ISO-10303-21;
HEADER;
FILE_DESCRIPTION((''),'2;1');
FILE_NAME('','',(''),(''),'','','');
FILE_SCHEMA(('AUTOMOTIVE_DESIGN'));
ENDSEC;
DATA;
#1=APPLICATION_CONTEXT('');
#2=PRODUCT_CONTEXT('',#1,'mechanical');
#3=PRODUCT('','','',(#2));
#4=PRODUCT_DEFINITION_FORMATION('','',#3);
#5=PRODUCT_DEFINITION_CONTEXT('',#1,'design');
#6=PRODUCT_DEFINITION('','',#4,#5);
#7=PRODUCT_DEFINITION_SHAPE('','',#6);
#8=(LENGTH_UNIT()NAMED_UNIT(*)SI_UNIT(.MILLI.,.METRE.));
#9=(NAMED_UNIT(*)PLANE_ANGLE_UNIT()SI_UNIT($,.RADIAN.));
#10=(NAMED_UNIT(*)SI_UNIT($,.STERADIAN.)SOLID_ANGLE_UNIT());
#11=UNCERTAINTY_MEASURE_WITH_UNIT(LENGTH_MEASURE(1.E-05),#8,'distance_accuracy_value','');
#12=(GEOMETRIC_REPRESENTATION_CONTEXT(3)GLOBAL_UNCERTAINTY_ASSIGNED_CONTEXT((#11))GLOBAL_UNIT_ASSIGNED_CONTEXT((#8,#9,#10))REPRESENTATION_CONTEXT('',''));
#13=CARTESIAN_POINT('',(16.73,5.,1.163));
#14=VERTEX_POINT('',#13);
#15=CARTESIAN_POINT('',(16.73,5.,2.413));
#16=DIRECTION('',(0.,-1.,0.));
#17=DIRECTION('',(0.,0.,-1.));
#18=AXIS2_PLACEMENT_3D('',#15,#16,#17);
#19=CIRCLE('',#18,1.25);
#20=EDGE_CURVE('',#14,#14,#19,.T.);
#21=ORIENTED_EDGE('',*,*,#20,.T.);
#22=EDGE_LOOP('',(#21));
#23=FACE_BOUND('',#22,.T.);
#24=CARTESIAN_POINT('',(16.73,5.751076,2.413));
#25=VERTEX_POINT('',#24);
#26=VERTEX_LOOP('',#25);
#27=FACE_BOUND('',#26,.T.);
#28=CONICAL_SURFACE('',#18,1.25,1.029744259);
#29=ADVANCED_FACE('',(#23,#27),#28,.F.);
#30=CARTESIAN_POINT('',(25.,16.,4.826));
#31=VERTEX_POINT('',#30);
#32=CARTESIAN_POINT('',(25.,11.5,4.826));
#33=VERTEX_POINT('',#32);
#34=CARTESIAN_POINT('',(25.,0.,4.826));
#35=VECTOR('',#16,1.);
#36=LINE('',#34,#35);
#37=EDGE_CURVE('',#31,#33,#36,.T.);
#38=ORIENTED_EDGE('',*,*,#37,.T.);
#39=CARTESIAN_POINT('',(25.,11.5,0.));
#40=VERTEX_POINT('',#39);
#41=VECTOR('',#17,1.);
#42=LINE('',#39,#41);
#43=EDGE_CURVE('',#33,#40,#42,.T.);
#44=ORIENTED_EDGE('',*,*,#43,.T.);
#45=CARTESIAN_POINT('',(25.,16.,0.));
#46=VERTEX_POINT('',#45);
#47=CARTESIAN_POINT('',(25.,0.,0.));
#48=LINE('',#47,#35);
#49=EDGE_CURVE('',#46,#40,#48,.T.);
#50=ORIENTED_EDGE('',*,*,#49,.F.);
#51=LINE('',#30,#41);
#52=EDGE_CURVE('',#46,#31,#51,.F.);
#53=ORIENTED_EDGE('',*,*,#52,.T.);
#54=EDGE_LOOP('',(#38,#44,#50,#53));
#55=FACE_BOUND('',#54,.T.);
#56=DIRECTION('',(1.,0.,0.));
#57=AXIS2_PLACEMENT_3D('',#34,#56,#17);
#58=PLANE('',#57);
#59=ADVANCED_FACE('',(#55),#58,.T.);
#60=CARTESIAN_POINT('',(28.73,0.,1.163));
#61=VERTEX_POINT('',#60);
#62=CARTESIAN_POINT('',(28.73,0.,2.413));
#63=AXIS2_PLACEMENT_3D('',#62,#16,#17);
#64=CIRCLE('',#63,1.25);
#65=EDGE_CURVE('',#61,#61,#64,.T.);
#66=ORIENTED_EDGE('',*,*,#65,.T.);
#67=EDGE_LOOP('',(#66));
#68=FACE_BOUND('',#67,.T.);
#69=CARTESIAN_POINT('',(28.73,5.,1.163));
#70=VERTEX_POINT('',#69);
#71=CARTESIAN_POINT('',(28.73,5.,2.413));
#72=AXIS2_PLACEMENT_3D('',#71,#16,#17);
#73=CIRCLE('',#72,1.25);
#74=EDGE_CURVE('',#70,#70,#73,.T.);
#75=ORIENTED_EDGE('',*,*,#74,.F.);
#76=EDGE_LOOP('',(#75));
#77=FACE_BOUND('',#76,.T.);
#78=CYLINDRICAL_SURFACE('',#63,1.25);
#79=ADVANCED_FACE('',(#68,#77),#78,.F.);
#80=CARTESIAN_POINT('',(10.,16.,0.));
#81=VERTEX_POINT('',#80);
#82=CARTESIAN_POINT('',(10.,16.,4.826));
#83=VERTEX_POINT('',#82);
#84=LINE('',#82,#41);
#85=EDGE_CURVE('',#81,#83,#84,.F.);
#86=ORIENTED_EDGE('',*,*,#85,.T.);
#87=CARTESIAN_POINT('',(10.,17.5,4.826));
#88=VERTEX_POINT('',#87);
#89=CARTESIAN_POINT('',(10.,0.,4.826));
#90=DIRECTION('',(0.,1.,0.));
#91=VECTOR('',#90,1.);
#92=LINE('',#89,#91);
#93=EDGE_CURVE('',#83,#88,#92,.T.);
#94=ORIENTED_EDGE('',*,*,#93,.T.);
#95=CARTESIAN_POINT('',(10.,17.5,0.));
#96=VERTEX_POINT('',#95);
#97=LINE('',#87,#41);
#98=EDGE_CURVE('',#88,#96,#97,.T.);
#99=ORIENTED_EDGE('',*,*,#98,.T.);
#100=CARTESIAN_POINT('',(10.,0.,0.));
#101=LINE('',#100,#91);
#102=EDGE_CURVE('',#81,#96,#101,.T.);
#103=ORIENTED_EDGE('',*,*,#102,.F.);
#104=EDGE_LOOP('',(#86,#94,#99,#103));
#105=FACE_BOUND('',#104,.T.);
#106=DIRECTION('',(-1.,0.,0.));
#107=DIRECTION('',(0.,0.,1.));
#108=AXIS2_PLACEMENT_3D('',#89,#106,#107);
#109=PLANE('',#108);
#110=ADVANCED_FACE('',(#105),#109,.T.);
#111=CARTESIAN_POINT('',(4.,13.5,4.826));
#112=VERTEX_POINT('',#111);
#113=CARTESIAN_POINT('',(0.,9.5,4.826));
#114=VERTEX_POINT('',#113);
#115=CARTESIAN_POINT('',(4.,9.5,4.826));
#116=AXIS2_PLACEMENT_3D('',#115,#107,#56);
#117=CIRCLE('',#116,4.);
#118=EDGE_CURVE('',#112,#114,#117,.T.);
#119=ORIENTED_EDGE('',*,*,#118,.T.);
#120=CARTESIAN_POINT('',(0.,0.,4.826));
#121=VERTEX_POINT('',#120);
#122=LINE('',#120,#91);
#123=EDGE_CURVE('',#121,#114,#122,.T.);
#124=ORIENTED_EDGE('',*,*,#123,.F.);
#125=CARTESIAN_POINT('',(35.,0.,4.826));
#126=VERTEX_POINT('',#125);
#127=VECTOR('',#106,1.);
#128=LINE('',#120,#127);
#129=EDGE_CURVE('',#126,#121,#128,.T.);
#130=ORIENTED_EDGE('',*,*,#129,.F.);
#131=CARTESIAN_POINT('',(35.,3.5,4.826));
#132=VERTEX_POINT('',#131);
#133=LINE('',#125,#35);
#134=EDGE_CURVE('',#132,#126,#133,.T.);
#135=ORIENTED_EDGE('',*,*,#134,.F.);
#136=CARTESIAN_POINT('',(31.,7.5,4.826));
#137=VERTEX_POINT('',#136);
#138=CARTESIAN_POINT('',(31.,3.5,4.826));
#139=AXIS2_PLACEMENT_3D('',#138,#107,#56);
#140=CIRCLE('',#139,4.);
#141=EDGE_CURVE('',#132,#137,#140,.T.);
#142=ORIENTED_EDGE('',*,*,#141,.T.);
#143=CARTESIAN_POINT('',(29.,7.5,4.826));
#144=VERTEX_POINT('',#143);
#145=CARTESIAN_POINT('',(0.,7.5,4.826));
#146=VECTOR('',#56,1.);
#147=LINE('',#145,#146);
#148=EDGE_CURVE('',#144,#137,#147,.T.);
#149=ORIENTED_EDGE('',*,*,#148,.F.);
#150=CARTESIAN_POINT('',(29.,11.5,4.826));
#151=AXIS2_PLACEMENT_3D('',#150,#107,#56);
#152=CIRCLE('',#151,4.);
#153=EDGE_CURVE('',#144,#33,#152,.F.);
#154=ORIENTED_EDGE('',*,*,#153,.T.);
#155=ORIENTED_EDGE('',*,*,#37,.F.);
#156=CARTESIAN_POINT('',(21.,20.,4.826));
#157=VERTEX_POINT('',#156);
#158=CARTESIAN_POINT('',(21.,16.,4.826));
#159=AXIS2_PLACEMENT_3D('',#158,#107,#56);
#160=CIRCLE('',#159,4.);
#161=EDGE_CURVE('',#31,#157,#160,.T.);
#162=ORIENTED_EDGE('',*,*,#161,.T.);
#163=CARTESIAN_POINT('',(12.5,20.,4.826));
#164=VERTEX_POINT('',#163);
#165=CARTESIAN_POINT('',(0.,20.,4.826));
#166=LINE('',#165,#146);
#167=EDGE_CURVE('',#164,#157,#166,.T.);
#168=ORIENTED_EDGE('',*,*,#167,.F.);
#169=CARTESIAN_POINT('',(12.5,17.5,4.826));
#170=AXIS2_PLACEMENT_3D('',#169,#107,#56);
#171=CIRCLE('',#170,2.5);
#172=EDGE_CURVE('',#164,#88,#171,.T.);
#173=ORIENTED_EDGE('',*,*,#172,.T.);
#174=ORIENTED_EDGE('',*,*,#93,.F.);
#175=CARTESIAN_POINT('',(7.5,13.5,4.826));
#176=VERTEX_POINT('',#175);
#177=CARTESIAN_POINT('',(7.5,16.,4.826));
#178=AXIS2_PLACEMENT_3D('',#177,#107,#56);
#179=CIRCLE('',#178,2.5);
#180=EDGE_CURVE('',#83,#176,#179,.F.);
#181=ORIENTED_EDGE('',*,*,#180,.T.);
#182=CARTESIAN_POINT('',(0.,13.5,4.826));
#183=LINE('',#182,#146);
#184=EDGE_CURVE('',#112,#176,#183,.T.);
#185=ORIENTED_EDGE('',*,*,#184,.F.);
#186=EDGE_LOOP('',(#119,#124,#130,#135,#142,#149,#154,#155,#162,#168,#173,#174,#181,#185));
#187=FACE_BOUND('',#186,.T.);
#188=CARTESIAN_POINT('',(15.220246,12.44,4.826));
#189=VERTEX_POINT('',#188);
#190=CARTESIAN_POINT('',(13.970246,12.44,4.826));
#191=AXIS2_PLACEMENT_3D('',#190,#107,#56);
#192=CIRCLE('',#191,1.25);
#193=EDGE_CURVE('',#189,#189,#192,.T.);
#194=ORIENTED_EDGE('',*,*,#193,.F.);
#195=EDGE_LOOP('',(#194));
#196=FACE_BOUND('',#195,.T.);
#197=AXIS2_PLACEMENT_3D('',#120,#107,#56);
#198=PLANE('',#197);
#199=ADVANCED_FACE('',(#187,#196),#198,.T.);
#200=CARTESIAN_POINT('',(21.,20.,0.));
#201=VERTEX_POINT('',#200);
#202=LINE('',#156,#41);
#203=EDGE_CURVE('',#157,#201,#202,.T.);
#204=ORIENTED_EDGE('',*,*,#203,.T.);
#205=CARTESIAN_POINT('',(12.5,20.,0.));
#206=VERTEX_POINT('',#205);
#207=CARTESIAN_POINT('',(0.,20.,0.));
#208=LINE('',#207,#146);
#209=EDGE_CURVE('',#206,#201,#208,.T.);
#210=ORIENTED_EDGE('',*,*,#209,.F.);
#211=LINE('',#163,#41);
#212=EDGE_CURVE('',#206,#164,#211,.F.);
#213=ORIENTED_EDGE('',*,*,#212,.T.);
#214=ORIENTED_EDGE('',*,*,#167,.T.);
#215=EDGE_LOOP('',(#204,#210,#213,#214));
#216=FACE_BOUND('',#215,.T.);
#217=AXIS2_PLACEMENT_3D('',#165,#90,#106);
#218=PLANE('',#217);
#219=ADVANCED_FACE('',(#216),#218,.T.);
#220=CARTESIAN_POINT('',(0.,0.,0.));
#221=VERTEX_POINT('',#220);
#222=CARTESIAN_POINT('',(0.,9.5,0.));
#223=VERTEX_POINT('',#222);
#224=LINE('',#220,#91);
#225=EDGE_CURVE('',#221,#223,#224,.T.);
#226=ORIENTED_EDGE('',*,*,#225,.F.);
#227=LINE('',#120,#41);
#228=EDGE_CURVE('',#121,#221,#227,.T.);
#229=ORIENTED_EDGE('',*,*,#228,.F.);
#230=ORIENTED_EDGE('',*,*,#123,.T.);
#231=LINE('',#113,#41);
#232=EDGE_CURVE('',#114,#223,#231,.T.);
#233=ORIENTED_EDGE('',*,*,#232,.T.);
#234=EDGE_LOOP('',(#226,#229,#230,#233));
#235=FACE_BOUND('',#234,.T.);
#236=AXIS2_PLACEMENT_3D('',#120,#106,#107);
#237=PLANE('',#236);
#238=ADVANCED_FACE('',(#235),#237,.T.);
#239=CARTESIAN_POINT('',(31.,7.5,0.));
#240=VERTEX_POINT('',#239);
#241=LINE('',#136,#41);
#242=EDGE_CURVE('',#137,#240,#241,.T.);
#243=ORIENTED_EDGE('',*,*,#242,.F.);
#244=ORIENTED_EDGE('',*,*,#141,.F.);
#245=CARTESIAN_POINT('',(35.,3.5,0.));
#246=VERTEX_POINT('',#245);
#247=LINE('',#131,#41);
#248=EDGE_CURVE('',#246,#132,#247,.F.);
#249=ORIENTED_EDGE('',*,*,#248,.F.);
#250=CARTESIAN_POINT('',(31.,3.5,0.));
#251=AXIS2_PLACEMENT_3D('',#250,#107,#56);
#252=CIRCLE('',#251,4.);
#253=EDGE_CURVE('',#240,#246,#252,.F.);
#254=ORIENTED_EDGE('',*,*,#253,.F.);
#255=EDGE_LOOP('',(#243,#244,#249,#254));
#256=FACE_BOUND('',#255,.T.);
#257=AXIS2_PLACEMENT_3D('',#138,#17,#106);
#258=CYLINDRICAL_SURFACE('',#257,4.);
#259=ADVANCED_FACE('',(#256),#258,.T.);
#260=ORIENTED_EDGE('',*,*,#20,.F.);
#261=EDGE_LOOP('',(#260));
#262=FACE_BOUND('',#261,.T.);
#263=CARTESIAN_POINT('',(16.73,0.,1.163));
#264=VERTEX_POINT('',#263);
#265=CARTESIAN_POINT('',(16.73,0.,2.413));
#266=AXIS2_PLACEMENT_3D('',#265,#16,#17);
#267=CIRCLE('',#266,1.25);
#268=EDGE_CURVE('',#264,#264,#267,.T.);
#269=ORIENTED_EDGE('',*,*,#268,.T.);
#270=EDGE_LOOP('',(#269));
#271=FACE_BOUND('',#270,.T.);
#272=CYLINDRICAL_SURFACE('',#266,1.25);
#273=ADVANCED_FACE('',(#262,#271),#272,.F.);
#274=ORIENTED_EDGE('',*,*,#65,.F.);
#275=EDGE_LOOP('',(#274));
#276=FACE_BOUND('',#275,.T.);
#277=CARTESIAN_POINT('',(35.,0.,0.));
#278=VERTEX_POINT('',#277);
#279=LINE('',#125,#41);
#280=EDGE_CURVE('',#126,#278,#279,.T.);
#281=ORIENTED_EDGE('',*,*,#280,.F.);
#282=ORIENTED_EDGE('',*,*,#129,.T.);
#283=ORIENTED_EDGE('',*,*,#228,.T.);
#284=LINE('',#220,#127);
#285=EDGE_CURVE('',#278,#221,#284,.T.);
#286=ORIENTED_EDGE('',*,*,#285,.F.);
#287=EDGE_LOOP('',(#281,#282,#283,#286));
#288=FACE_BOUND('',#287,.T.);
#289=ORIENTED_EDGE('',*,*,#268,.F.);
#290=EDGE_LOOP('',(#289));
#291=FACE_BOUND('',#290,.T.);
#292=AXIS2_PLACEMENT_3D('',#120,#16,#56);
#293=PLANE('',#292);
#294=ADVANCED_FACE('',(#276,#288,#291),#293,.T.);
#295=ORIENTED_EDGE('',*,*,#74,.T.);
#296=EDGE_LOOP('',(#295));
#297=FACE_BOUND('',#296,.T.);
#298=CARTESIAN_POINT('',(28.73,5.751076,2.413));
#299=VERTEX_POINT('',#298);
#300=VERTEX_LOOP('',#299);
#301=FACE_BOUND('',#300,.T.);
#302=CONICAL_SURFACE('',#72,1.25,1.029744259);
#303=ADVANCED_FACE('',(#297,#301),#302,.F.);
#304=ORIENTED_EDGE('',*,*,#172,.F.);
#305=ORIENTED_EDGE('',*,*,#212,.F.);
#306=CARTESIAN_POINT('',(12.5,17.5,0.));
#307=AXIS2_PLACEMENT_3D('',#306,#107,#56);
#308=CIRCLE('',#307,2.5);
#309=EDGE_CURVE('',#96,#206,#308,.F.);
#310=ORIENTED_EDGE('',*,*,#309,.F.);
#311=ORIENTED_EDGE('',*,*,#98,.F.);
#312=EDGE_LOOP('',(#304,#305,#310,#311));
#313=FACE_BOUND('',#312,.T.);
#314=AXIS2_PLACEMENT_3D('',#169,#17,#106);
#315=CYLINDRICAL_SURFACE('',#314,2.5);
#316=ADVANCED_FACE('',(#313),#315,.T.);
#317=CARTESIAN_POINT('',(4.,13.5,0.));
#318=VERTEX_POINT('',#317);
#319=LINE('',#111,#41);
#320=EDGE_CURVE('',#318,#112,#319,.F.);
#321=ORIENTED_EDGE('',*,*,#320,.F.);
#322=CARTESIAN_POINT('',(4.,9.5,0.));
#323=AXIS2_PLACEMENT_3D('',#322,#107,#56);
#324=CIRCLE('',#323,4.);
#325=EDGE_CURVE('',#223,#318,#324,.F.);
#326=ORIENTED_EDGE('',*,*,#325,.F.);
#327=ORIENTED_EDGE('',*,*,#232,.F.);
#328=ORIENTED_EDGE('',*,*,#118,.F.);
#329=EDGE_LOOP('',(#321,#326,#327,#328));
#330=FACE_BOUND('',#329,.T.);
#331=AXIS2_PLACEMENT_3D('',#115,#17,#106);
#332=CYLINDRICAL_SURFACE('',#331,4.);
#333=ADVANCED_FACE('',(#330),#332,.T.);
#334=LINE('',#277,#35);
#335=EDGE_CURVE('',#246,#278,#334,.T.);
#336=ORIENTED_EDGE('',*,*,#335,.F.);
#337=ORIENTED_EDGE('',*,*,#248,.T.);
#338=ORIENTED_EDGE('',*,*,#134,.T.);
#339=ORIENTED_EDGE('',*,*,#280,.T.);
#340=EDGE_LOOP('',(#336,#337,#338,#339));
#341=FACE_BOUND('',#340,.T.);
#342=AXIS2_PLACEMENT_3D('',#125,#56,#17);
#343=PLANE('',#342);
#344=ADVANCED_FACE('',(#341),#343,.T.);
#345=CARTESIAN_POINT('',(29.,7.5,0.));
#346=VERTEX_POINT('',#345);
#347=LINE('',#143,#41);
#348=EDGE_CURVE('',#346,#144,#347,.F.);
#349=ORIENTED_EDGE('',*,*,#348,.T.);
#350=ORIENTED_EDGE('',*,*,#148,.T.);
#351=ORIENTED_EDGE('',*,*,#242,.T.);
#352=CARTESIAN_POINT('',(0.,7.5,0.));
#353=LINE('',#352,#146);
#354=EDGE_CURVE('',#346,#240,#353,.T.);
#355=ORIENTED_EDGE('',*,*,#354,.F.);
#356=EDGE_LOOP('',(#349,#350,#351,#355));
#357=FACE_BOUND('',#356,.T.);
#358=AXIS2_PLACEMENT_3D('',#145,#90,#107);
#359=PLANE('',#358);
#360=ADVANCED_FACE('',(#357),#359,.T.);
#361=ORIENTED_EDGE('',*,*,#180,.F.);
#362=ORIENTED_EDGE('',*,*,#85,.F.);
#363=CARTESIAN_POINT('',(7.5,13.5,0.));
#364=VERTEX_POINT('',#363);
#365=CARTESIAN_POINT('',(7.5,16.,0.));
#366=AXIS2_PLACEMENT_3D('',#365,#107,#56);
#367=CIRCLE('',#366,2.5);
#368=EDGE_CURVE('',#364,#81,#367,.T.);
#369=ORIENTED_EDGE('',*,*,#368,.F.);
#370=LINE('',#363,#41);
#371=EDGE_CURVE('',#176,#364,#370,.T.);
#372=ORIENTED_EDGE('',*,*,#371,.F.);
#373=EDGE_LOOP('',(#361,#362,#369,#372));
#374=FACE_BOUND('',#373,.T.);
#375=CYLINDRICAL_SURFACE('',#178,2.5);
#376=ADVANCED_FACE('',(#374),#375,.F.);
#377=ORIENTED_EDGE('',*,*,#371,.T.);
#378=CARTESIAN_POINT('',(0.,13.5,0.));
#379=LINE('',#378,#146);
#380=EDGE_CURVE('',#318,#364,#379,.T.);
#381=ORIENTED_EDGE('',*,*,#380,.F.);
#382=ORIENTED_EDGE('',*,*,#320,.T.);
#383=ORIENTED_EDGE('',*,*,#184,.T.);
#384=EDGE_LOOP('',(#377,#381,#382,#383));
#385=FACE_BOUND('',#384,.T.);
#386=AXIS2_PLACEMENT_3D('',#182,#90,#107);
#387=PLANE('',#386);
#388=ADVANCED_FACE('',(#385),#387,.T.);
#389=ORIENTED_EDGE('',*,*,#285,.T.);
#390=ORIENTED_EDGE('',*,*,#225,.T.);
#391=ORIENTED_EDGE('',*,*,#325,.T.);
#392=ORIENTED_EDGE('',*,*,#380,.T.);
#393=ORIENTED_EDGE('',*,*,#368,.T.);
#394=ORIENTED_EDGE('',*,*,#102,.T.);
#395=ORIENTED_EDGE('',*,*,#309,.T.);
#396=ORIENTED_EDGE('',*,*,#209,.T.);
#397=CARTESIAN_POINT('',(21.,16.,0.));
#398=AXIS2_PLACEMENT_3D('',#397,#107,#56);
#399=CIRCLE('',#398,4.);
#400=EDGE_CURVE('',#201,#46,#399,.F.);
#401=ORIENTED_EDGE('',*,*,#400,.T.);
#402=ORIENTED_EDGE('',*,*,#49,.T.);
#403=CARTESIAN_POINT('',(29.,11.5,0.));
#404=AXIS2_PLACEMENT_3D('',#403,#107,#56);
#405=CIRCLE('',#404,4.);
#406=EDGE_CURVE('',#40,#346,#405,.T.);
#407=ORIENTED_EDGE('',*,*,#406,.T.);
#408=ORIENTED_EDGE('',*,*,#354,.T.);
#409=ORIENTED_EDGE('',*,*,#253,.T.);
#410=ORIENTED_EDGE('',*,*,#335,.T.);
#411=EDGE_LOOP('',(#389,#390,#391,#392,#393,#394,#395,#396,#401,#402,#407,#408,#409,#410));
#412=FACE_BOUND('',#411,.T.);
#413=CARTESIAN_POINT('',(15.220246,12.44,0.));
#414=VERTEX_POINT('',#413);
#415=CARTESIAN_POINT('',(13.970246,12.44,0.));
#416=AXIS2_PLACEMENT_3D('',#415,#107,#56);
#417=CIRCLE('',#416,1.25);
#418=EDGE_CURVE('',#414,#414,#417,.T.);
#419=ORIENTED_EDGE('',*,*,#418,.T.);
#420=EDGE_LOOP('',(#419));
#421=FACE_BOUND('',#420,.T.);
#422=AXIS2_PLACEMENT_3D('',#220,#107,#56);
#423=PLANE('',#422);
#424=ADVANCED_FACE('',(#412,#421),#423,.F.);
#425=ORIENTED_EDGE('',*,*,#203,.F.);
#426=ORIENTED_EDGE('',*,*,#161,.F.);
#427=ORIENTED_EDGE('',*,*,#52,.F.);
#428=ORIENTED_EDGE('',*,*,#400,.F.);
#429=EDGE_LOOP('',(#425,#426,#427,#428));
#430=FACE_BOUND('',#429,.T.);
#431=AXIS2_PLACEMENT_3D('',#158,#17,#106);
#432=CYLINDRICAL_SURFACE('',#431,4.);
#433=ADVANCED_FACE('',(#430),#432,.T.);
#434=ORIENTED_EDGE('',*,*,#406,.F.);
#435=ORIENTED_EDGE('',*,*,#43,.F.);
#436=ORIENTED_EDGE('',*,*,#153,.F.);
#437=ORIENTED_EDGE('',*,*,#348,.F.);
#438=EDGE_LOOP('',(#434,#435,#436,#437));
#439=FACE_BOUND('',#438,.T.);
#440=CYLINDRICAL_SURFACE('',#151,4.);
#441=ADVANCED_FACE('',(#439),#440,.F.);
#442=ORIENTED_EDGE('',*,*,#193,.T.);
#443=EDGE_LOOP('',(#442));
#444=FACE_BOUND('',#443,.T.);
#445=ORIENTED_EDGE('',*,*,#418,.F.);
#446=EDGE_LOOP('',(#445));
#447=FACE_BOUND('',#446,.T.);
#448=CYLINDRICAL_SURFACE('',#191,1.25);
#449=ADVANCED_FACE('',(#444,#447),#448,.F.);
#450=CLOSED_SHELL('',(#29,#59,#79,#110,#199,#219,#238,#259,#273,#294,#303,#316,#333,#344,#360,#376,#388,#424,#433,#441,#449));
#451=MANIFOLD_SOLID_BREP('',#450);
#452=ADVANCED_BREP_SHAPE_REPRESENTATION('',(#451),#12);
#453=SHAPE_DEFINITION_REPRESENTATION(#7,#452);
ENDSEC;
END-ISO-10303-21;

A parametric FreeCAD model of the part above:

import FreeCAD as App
import Part
import Sketcher
from FreeCAD import Vector


def edges_at(feature, points):
    """Names of the edges that pass closest to the given points."""
    edges = feature.Shape.Edges
    near = lambda p: min(range(len(edges)), key=lambda i: edges[i].distToShape(Part.Vertex(*p))[0])
    return sorted({f"Edge{near(p) + 1}" for p in points})


def add_polygon(sketch, points):
    """Adds a closed chain of lines whose ends are joined by coincident constraints."""
    first, n = sketch.GeometryCount, len(points)
    for a, b in zip(points, points[1:] + points[:1]):
        sketch.addGeometry(Part.LineSegment(App.Vector(*a, 0), App.Vector(*b, 0)), False)
    for i in range(n):
        sketch.addConstraint(Sketcher.Constraint("Coincident", first + i, 2, first + (i + 1) % n, 1))

doc = App.newDocument("Part")
body = doc.addObject("PartDesign::Body", "Body")

sketch1 = body.newObject("Sketcher::SketchObject", "Sketch")
sketch1.AttachmentSupport = (doc.getObject("XY_Plane"), [""])
sketch1.MapMode = "FlatFace"
add_polygon(sketch1, [(0, 14), (0, 0), (35, 0), (35, 8), (25, 8), (25, 20), (10, 20), (10, 14)])
sketch1.addConstraint(Sketcher.Constraint("Vertical", 0))
sketch1.addConstraint(Sketcher.Constraint("Horizontal", 1))
sketch1.addConstraint(Sketcher.Constraint("Vertical", 2))
sketch1.addConstraint(Sketcher.Constraint("Horizontal", 3))
sketch1.addConstraint(Sketcher.Constraint("Vertical", 4))
sketch1.addConstraint(Sketcher.Constraint("Horizontal", 5))
sketch1.addConstraint(Sketcher.Constraint("Vertical", 6))
sketch1.addConstraint(Sketcher.Constraint("Horizontal", 7))
sketch1.addConstraint(Sketcher.Constraint("Coincident", 0, 2, -1, 1))
sketch1.addConstraint(Sketcher.Constraint("Equal", 3, 7))
sketch1.addConstraint(Sketcher.Constraint("DistanceX", 1, 1, 1, 2, 35.0))
sketch1.addConstraint(Sketcher.Constraint("DistanceX", 3, 2, 3, 1, 10.0))
sketch1.addConstraint(Sketcher.Constraint("DistanceY", 0, 2, 0, 1, 13.5))
sketch1.addConstraint(Sketcher.Constraint("DistanceY", 2, 1, 2, 2, 7.5))
sketch1.addConstraint(Sketcher.Constraint("DistanceY", 4, 1, 4, 2, 12.5))
pad1 = body.newObject("PartDesign::Pad", "Pad")
pad1.Profile = sketch1
pad1.Length = 4.826

sketch2 = body.newObject("Sketcher::SketchObject", "Sketch001")
sketch2.AttachmentSupport = (doc.getObject("XY_Plane"), [""])
sketch2.MapMode = "FlatFace"
sketch2.AttachmentOffset = App.Placement(Vector(0, 0, 4.826), App.Rotation())
sketch2.addGeometry(Part.Circle(Vector(14, 12.4, 0), Vector(0, 0, 1), 1.2), False)
sketch2.addConstraint(Sketcher.Constraint("Diameter", 0, 2.5))
sketch2.addConstraint(Sketcher.Constraint("DistanceY", -1, 1, 0, 3, 12.44))
sketch2.addConstraint(Sketcher.Constraint("DistanceX", -1, 1, 0, 3, 13.970246))
doc.recompute()
hole = body.newObject("PartDesign::Hole", "Hole")
hole.Profile = sketch2
hole.ThreadType = "None"
hole.Diameter = 2.5
hole.DepthType = "ThroughAll"

sketch3 = body.newObject("Sketcher::SketchObject", "Sketch002")
sketch3.AttachmentSupport = (doc.getObject("XZ_Plane"), [""])
sketch3.MapMode = "FlatFace"
sketch3.addGeometry(Part.Circle(Vector(16.7, 2.4, 0), Vector(0, 0, 1), 1.2), False)
sketch3.addGeometry(Part.Circle(Vector(28.7, 2.4, 0), Vector(0, 0, 1), 1.2), False)
sketch3.addConstraint(Sketcher.Constraint("Equal", 0, 1))
sketch3.addConstraint(Sketcher.Constraint("Horizontal", 0, 3, 1, 3))
sketch3.addConstraint(Sketcher.Constraint("Diameter", 0, 2.5))
sketch3.addConstraint(Sketcher.Constraint("DistanceX", 0, 3, 1, 3, 12.0))
sketch3.addConstraint(Sketcher.Constraint("DistanceX", -1, 1, 0, 3, 16.73))
sketch3.addConstraint(Sketcher.Constraint("DistanceY", -1, 1, 0, 3, 2.413))
doc.recompute()
hole2 = body.newObject("PartDesign::Hole", "Hole001")
hole2.Profile = sketch3
hole2.ThreadType = "None"
hole2.Diameter = 2.5
hole2.DepthType = "Dimension"
hole2.Depth = 5
hole2.DrillPoint = "Angled"
hole2.DrillPointAngle = 118
doc.recompute()

fillet = body.newObject("PartDesign::Fillet", "Fillet")
fillet.Base = (hole2, edges_at(hole2, [(10, 20, 2.413), (10, 13.5, 2.413)]))
fillet.Radius = 2.5
doc.recompute()

fillet2 = body.newObject("PartDesign::Fillet", "Fillet001")
fillet2.Base = (fillet, edges_at(fillet, [
    (25, 20, 2.413),
    (25, 7.5, 2.413),
    (35, 7.5, 2.413),
    (0, 13.5, 2.413),
]))
fillet2.Radius = 4

doc.recompute()
